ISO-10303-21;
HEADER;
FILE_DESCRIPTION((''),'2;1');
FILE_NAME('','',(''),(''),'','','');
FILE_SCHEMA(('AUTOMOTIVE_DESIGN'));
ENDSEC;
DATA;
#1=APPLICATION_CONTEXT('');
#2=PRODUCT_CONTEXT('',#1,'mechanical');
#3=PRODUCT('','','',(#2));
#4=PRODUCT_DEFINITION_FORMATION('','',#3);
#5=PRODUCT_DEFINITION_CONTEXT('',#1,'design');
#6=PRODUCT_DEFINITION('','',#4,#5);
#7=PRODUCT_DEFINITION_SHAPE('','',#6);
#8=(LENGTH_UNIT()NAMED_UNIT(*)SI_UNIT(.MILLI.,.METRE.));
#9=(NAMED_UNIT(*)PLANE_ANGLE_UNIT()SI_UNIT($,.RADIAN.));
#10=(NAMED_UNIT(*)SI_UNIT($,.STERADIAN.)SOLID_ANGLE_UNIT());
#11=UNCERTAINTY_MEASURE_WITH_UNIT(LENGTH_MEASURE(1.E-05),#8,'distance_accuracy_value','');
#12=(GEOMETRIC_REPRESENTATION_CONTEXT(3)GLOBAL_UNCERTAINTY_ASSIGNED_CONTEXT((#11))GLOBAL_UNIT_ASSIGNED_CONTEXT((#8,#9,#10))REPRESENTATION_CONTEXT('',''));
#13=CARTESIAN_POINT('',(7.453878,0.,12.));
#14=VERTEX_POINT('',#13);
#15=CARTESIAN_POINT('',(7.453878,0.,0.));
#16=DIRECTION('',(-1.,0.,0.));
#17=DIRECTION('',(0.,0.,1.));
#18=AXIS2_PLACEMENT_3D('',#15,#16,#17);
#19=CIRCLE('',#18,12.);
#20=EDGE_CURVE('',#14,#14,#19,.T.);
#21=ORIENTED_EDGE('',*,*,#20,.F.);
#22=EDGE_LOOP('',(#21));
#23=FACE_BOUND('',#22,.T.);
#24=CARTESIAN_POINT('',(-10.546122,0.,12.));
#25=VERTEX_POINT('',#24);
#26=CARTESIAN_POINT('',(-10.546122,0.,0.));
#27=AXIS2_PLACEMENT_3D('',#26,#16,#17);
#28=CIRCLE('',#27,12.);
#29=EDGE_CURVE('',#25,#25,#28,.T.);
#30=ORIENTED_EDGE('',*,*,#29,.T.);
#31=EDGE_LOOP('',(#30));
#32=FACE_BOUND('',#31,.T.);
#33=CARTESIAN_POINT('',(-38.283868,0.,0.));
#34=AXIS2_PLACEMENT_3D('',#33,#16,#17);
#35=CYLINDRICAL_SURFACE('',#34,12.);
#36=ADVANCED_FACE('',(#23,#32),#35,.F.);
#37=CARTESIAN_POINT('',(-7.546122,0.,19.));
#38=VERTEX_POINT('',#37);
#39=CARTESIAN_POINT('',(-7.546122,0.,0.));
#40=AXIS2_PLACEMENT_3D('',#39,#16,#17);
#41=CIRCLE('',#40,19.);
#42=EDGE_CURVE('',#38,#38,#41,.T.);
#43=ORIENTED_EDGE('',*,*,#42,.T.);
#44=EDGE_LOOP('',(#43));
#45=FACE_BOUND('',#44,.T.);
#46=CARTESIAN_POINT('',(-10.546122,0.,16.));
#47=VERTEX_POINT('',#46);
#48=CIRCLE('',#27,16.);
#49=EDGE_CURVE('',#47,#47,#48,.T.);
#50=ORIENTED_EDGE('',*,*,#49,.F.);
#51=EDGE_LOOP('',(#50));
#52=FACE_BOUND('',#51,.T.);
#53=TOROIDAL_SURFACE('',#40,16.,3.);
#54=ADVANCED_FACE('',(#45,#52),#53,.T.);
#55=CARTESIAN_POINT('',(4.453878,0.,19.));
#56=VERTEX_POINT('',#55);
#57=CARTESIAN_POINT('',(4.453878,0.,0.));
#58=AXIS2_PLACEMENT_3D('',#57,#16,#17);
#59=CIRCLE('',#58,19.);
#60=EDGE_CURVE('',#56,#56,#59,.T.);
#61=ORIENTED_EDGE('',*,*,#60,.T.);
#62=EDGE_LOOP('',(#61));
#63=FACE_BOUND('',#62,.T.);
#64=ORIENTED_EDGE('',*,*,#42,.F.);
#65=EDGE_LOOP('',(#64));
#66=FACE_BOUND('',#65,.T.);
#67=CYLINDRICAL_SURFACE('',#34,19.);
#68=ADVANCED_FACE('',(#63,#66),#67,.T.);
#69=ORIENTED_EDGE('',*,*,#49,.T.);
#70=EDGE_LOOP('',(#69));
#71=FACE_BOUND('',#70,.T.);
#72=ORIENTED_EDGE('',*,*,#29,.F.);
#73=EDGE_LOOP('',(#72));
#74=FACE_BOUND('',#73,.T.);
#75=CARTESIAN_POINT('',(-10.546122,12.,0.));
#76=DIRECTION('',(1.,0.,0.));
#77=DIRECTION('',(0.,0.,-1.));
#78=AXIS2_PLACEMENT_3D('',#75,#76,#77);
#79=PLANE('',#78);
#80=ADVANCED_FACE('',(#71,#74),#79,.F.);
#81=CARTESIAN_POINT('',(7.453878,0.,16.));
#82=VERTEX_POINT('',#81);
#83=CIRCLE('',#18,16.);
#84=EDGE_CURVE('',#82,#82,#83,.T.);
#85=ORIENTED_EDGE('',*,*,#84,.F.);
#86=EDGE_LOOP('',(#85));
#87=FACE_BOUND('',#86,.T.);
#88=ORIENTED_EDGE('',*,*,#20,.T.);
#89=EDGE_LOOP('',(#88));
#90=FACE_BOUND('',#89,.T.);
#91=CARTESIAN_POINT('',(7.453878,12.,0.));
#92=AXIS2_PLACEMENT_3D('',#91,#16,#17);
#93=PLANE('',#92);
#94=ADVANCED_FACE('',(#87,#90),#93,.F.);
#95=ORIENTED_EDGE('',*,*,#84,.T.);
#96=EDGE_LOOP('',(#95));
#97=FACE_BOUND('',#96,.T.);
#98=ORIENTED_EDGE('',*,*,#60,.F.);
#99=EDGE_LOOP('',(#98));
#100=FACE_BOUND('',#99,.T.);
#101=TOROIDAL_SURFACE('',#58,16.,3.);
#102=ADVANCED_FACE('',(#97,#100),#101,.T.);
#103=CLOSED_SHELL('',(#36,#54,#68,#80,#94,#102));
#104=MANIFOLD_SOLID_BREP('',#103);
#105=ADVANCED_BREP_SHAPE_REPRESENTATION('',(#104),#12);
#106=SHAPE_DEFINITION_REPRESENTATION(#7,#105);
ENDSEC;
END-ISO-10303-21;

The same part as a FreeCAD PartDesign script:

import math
import FreeCAD as App
import Part
import Sketcher

V = App.Vector
Q = App.Units.Quantity

doc = App.newDocument("Part")
body = doc.addObject("PartDesign::Body", "Body")

# Sketch on XY plane
sketch1 = body.newObject("Sketcher::SketchObject", "Sketch")
sketch1.AttachmentSupport = (doc.getObject("XY_Plane"), [""])
sketch1.MapMode = "FlatFace"
sketch1.addGeometry([
    Part.LineSegment(V(-10.5, 12, 0), V(7.5, 12, 0)),  # 0
    Part.LineSegment(V(7.5, 12, 0), V(7.5, 16, 0)),  # 1
    Part.ArcOfCircle(Part.Circle(V(4.5, 16, 0), V(0, 0, 1), 3), math.radians(0), math.radians(90)),  # 2
    Part.LineSegment(V(4.5, 19, 0), V(-7.5, 19, 0)),  # 3
    Part.ArcOfCircle(Part.Circle(V(-7.5, 16, 0), V(0, 0, 1), 3), math.radians(90), math.radians(180)),  # 4
    Part.LineSegment(V(-10.5, 16, 0), V(-10.5, 12, 0)),  # 5
], False)
sketch1.addConstraint([
    Sketcher.Constraint("Coincident", 0, 2, 1, 1),
    Sketcher.Constraint("Tangent", 1, 2, 2, 1),
    Sketcher.Constraint("Tangent", 2, 2, 3, 1),
    Sketcher.Constraint("Tangent", 3, 2, 4, 1),
    Sketcher.Constraint("Tangent", 4, 2, 5, 1),
    Sketcher.Constraint("Coincident", 5, 2, 0, 1),
    Sketcher.Constraint("Horizontal", 0),
    Sketcher.Constraint("Vertical", 1),
    Sketcher.Constraint("Horizontal", 3),
    Sketcher.Constraint("Vertical", 5),
    Sketcher.Constraint("Equal", 2, 4),
    Sketcher.Constraint("Radius", 2, Q("3 mm")),
    Sketcher.Constraint("DistanceX", 0, 1, 0, 2, Q("18 mm")),
    Sketcher.Constraint("DistanceY", 1, 1, 1, 2, Q("4 mm")),
    Sketcher.Constraint("DistanceY", -1, 1, 2, 3, Q("16 mm")),
    Sketcher.Constraint("DistanceX", -1, 1, 2, 3, Q("4.453878 mm")),
])
revolution = body.newObject("PartDesign::Revolution", "Revolution")
revolution.Profile = sketch1
revolution.ReferenceAxis = (sketch1, ["H_Axis"])
revolution.Angle = 360

doc.recompute()
